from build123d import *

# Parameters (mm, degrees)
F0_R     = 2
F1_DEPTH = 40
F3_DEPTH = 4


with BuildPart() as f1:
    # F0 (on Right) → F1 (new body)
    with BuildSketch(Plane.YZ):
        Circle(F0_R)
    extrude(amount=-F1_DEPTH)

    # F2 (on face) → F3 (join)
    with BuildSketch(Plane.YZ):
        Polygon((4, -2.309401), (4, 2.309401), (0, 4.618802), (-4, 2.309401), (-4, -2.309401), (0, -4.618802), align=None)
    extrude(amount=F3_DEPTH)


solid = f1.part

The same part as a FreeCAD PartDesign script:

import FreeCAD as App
import Part
import Sketcher

V = App.Vector
Q = App.Units.Quantity


def add_polygon(sketch, points):
    """Adds a closed chain of lines whose ends are joined by coincident constraints."""
    first, n = sketch.GeometryCount, len(points)
    for a, b in zip(points, points[1:] + points[:1]):
        sketch.addGeometry(Part.LineSegment(App.Vector(*a, 0), App.Vector(*b, 0)), False)
    for i in range(n):
        sketch.addConstraint(Sketcher.Constraint("Coincident", first + i, 2, first + (i + 1) % n, 1))

doc = App.newDocument("Part")
body = doc.addObject("PartDesign::Body", "Body")

sketch1 = body.newObject("Sketcher::SketchObject", "Sketch")
sketch1.AttachmentSupport = (doc.getObject("YZ_Plane"), [""])
sketch1.MapMode = "FlatFace"
sketch1.addGeometry(Part.Circle(V(0, 0, 0), V(0, 0, 1), 2), False)
sketch1.addConstraint([
    Sketcher.Constraint("Coincident", 0, 3, -1, 1),
    Sketcher.Constraint("Diameter", 0, Q("4 mm")),
])
pad1 = body.newObject("PartDesign::Pad", "Pad")
pad1.Profile = sketch1
pad1.Length = 40
pad1.Reversed = True

sketch2 = body.newObject("Sketcher::SketchObject", "Sketch001")
sketch2.AttachmentSupport = (doc.getObject("YZ_Plane"), [""])
sketch2.MapMode = "FlatFace"
add_polygon(sketch2, [(4, -2.3), (4, 2.3), (0, 4.6), (-4, 2.3), (-4, -2.3), (0, -4.6)])
sketch2.addConstraint([
    Sketcher.Constraint("Vertical", 0),
    Sketcher.Constraint("Vertical", 3),
    Sketcher.Constraint("Symmetric", 0, 2, 3, 2, -1, 1),
    Sketcher.Constraint("Symmetric", 1, 2, 4, 2, -1, 1),
    Sketcher.Constraint("PointOnObject", 1, 2, -2),
    Sketcher.Constraint("Parallel", 2, 5),
    Sketcher.Constraint("Horizontal", 0, 2, 2, 2),
    Sketcher.Constraint("Angle", 1, Q("150.000001 deg")),
    Sketcher.Constraint("DistanceX", -1, 1, 0, 2, Q("4 mm")),
    Sketcher.Constraint("DistanceY", 0, 1, 0, 2, Q("4.618802 mm")),
])
pad2 = body.newObject("PartDesign::Pad", "Pad001")
pad2.Profile = sketch2
pad2.Length = 4

doc.recompute()
